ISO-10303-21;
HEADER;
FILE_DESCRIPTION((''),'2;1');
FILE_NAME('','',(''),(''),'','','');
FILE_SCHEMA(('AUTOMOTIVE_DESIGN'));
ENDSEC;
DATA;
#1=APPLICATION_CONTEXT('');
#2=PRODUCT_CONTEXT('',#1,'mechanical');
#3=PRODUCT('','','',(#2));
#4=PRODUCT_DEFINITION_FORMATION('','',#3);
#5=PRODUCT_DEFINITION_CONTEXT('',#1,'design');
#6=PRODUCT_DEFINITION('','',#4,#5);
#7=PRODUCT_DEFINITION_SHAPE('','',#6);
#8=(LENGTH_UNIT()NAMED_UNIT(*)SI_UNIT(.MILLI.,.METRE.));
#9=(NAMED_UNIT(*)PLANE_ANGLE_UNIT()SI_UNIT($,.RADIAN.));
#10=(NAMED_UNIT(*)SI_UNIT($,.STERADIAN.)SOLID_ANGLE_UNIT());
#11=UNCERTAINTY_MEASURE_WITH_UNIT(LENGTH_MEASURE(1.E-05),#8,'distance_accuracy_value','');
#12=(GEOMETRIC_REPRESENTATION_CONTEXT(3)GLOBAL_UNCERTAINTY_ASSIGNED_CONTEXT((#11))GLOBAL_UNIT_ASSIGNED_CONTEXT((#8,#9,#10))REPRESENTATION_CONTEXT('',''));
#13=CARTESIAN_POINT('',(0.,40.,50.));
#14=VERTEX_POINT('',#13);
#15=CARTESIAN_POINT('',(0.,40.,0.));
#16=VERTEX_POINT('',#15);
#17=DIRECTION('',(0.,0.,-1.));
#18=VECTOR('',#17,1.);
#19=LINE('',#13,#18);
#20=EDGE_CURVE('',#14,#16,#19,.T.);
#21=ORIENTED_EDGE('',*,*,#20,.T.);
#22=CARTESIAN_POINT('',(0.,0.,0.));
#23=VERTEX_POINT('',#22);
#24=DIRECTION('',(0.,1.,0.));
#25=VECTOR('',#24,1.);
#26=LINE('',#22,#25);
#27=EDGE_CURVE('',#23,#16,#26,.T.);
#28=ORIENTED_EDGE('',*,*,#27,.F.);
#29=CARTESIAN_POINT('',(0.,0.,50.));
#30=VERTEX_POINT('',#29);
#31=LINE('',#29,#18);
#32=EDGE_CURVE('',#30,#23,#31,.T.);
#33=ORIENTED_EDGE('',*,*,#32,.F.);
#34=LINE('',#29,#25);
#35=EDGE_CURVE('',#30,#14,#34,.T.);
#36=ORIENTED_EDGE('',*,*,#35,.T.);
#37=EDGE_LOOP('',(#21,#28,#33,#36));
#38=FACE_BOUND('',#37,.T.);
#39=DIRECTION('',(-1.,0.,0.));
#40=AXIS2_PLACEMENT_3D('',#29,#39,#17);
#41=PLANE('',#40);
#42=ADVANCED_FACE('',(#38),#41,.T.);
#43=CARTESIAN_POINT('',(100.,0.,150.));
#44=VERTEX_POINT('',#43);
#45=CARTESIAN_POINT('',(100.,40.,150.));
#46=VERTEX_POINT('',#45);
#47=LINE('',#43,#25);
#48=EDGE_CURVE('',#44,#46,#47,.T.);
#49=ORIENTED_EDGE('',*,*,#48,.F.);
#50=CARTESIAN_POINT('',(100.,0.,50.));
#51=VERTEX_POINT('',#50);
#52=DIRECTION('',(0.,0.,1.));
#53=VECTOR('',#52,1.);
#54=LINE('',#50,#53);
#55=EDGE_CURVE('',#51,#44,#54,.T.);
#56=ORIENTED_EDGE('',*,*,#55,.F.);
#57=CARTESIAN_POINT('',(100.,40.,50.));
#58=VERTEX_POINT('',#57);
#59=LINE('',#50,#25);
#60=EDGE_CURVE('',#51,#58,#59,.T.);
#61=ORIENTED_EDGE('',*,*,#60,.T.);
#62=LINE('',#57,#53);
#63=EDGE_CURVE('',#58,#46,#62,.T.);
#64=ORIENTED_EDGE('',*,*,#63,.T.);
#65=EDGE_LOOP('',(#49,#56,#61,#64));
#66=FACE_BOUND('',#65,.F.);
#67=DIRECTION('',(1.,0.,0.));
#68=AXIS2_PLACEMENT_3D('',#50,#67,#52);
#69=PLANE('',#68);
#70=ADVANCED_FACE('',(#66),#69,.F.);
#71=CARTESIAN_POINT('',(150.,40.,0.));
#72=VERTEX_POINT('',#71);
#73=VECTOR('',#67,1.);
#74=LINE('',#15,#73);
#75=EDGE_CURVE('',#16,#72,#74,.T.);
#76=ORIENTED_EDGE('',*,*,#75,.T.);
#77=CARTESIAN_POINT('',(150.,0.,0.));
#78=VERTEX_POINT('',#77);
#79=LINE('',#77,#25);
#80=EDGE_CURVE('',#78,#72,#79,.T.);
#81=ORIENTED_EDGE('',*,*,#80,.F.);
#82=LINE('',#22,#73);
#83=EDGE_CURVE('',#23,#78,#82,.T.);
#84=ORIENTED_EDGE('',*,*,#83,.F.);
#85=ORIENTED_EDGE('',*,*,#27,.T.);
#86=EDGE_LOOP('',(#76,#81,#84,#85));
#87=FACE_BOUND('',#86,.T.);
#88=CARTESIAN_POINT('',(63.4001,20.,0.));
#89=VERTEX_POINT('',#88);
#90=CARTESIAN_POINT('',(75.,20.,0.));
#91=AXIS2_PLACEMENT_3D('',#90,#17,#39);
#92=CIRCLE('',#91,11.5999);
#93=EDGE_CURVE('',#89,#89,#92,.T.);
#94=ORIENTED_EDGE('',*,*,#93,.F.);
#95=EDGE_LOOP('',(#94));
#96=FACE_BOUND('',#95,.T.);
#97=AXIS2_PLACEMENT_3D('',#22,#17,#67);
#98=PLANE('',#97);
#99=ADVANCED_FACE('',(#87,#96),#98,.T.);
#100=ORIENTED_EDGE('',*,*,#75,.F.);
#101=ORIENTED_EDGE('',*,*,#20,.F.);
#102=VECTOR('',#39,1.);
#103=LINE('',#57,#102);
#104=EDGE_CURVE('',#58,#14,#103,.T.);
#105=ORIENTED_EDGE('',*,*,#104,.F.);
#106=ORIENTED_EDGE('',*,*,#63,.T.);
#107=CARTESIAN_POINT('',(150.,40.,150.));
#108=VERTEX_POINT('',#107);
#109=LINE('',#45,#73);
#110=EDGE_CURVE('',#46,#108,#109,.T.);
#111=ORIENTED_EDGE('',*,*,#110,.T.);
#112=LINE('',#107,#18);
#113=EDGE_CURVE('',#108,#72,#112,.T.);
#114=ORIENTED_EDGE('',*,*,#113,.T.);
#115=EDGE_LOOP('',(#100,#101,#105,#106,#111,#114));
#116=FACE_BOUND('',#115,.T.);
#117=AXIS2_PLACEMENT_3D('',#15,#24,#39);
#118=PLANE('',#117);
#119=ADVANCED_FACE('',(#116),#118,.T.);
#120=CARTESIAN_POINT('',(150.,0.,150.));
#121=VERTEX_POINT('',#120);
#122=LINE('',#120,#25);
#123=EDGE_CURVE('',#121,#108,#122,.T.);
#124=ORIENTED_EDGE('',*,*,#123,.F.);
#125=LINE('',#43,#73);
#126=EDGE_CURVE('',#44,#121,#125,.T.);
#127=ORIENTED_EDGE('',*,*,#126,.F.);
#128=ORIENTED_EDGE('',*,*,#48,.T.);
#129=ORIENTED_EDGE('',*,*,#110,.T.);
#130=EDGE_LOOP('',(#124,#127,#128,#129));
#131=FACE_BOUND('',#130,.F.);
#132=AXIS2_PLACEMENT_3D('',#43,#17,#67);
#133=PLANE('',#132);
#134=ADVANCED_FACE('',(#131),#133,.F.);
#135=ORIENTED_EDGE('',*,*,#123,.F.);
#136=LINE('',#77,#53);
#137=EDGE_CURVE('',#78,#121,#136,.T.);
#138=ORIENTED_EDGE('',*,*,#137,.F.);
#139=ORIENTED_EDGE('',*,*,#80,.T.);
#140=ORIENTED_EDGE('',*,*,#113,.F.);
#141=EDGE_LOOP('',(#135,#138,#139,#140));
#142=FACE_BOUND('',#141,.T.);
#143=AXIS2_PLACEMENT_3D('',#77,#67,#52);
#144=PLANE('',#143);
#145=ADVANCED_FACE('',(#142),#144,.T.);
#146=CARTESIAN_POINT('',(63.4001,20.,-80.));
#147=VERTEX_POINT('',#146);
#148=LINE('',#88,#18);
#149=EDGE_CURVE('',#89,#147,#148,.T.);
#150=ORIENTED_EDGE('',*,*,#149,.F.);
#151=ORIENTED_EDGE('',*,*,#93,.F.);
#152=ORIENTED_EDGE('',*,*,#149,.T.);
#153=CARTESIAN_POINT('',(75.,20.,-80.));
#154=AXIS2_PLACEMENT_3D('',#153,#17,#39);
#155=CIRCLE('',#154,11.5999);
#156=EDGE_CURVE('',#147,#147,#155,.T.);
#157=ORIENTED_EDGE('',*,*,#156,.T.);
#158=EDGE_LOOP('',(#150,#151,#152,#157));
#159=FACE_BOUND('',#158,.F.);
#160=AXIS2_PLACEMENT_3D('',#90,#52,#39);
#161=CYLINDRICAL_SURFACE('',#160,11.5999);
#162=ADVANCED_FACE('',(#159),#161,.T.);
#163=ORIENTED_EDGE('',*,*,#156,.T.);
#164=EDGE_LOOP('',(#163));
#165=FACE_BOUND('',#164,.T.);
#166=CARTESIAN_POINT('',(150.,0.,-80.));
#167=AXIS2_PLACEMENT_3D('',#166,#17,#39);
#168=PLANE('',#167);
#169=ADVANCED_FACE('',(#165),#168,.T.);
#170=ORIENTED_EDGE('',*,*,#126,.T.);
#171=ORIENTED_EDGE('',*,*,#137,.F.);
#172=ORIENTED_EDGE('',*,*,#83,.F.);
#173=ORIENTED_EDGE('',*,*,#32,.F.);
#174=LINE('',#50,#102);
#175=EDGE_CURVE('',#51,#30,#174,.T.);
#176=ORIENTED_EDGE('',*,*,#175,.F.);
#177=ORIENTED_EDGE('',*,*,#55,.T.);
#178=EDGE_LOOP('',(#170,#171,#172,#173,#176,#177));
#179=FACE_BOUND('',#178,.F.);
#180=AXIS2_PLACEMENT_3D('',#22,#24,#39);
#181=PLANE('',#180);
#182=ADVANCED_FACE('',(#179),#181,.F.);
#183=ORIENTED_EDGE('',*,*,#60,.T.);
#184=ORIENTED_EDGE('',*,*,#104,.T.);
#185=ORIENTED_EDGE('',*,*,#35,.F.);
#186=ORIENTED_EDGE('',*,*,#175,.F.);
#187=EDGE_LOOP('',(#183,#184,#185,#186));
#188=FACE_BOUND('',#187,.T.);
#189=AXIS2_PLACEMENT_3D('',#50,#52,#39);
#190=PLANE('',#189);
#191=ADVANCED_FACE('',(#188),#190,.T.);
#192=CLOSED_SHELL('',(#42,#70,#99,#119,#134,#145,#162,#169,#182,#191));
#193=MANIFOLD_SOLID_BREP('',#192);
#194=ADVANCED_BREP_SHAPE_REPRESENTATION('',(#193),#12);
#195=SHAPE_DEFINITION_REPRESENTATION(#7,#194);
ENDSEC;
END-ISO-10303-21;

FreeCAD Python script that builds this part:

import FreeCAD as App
import Part
import Sketcher

V = App.Vector
Q = App.Units.Quantity

doc = App.newDocument("Part")
body = doc.addObject("PartDesign::Body", "Body")

# Sketch on XZ plane
sketch1 = doc.addObject("Sketcher::SketchObject", "Sketch")
body.addObject(sketch1)
sketch1.AttachmentSupport = (doc.XZ_Plane, [""])
sketch1.MapMode = "FlatFace"
sketch1.addGeometry(Part.LineSegment(V(150, 0, 0), V(0, 0, 0)), False)
sketch1.addGeometry(Part.LineSegment(V(0, 0, 0), V(0, 50, 0)), False)
sketch1.addGeometry(Part.LineSegment(V(0, 50, 0), V(100, 50, 0)), False)
sketch1.addGeometry(Part.LineSegment(V(100, 50, 0), V(100, 150, 0)), False)
sketch1.addGeometry(Part.LineSegment(V(100, 150, 0), V(150, 150, 0)), False)
sketch1.addGeometry(Part.LineSegment(V(150, 150, 0), V(150, 0, 0)), False)
sketch1.addConstraint(Sketcher.Constraint("Coincident", 0, 2, 1, 1))
sketch1.addConstraint(Sketcher.Constraint("Coincident", 1, 2, 2, 1))
sketch1.addConstraint(Sketcher.Constraint("Coincident", 2, 2, 3, 1))
sketch1.addConstraint(Sketcher.Constraint("Coincident", 3, 2, 4, 1))
sketch1.addConstraint(Sketcher.Constraint("Coincident", 4, 2, 5, 1))
sketch1.addConstraint(Sketcher.Constraint("Coincident", 5, 2, 0, 1))
sketch1.addConstraint(Sketcher.Constraint("Horizontal", 0))
sketch1.addConstraint(Sketcher.Constraint("Vertical", 1))
sketch1.addConstraint(Sketcher.Constraint("Horizontal", 2))
sketch1.addConstraint(Sketcher.Constraint("Vertical", 3))
sketch1.addConstraint(Sketcher.Constraint("Horizontal", 4))
sketch1.addConstraint(Sketcher.Constraint("Vertical", 5))
sketch1.addConstraint(Sketcher.Constraint("Coincident", 0, 2, -1, 1))
sketch1.addConstraint(Sketcher.Constraint("Equal", 4, 1))
sketch1.addConstraint(Sketcher.Constraint("Equal", 2, 3))
sketch1.addConstraint(Sketcher.Constraint("DistanceX", 2, 1, 2, 2, Q("3.937 in")))
sketch1.addConstraint(Sketcher.Constraint("DistanceX", 0, 2, 0, 1, Q("5.9055 in")))
pad1 = doc.addObject("PartDesign::Pad", "Pad")
body.addObject(pad1)
pad1.Profile = sketch1
pad1.Length = Q("1.5748031 in")
pad1.Reversed = True

# Sketch on XY plane
sketch2 = doc.addObject("Sketcher::SketchObject", "Sketch001")
body.addObject(sketch2)
sketch2.AttachmentSupport = (doc.XY_Plane, [""])
sketch2.MapMode = "FlatFace"
sketch2.addGeometry(Part.Circle(V(75, 20, 0), V(0, 0, 1), 12), False)
sketch2.addConstraint(Sketcher.Constraint("Diameter", 0, Q("23.1998 mm")))
sketch2.addConstraint(Sketcher.Constraint("DistanceY", -1, 1, 0, 3, Q("0.7874 in")))
sketch2.addConstraint(Sketcher.Constraint("DistanceX", -1, 1, 0, 3, Q("75 mm")))
pad2 = doc.addObject("PartDesign::Pad", "Pad001")
body.addObject(pad2)
pad2.Profile = sketch2
pad2.Length = Q("3.1496063 in")
pad2.Reversed = True

doc.recompute()
